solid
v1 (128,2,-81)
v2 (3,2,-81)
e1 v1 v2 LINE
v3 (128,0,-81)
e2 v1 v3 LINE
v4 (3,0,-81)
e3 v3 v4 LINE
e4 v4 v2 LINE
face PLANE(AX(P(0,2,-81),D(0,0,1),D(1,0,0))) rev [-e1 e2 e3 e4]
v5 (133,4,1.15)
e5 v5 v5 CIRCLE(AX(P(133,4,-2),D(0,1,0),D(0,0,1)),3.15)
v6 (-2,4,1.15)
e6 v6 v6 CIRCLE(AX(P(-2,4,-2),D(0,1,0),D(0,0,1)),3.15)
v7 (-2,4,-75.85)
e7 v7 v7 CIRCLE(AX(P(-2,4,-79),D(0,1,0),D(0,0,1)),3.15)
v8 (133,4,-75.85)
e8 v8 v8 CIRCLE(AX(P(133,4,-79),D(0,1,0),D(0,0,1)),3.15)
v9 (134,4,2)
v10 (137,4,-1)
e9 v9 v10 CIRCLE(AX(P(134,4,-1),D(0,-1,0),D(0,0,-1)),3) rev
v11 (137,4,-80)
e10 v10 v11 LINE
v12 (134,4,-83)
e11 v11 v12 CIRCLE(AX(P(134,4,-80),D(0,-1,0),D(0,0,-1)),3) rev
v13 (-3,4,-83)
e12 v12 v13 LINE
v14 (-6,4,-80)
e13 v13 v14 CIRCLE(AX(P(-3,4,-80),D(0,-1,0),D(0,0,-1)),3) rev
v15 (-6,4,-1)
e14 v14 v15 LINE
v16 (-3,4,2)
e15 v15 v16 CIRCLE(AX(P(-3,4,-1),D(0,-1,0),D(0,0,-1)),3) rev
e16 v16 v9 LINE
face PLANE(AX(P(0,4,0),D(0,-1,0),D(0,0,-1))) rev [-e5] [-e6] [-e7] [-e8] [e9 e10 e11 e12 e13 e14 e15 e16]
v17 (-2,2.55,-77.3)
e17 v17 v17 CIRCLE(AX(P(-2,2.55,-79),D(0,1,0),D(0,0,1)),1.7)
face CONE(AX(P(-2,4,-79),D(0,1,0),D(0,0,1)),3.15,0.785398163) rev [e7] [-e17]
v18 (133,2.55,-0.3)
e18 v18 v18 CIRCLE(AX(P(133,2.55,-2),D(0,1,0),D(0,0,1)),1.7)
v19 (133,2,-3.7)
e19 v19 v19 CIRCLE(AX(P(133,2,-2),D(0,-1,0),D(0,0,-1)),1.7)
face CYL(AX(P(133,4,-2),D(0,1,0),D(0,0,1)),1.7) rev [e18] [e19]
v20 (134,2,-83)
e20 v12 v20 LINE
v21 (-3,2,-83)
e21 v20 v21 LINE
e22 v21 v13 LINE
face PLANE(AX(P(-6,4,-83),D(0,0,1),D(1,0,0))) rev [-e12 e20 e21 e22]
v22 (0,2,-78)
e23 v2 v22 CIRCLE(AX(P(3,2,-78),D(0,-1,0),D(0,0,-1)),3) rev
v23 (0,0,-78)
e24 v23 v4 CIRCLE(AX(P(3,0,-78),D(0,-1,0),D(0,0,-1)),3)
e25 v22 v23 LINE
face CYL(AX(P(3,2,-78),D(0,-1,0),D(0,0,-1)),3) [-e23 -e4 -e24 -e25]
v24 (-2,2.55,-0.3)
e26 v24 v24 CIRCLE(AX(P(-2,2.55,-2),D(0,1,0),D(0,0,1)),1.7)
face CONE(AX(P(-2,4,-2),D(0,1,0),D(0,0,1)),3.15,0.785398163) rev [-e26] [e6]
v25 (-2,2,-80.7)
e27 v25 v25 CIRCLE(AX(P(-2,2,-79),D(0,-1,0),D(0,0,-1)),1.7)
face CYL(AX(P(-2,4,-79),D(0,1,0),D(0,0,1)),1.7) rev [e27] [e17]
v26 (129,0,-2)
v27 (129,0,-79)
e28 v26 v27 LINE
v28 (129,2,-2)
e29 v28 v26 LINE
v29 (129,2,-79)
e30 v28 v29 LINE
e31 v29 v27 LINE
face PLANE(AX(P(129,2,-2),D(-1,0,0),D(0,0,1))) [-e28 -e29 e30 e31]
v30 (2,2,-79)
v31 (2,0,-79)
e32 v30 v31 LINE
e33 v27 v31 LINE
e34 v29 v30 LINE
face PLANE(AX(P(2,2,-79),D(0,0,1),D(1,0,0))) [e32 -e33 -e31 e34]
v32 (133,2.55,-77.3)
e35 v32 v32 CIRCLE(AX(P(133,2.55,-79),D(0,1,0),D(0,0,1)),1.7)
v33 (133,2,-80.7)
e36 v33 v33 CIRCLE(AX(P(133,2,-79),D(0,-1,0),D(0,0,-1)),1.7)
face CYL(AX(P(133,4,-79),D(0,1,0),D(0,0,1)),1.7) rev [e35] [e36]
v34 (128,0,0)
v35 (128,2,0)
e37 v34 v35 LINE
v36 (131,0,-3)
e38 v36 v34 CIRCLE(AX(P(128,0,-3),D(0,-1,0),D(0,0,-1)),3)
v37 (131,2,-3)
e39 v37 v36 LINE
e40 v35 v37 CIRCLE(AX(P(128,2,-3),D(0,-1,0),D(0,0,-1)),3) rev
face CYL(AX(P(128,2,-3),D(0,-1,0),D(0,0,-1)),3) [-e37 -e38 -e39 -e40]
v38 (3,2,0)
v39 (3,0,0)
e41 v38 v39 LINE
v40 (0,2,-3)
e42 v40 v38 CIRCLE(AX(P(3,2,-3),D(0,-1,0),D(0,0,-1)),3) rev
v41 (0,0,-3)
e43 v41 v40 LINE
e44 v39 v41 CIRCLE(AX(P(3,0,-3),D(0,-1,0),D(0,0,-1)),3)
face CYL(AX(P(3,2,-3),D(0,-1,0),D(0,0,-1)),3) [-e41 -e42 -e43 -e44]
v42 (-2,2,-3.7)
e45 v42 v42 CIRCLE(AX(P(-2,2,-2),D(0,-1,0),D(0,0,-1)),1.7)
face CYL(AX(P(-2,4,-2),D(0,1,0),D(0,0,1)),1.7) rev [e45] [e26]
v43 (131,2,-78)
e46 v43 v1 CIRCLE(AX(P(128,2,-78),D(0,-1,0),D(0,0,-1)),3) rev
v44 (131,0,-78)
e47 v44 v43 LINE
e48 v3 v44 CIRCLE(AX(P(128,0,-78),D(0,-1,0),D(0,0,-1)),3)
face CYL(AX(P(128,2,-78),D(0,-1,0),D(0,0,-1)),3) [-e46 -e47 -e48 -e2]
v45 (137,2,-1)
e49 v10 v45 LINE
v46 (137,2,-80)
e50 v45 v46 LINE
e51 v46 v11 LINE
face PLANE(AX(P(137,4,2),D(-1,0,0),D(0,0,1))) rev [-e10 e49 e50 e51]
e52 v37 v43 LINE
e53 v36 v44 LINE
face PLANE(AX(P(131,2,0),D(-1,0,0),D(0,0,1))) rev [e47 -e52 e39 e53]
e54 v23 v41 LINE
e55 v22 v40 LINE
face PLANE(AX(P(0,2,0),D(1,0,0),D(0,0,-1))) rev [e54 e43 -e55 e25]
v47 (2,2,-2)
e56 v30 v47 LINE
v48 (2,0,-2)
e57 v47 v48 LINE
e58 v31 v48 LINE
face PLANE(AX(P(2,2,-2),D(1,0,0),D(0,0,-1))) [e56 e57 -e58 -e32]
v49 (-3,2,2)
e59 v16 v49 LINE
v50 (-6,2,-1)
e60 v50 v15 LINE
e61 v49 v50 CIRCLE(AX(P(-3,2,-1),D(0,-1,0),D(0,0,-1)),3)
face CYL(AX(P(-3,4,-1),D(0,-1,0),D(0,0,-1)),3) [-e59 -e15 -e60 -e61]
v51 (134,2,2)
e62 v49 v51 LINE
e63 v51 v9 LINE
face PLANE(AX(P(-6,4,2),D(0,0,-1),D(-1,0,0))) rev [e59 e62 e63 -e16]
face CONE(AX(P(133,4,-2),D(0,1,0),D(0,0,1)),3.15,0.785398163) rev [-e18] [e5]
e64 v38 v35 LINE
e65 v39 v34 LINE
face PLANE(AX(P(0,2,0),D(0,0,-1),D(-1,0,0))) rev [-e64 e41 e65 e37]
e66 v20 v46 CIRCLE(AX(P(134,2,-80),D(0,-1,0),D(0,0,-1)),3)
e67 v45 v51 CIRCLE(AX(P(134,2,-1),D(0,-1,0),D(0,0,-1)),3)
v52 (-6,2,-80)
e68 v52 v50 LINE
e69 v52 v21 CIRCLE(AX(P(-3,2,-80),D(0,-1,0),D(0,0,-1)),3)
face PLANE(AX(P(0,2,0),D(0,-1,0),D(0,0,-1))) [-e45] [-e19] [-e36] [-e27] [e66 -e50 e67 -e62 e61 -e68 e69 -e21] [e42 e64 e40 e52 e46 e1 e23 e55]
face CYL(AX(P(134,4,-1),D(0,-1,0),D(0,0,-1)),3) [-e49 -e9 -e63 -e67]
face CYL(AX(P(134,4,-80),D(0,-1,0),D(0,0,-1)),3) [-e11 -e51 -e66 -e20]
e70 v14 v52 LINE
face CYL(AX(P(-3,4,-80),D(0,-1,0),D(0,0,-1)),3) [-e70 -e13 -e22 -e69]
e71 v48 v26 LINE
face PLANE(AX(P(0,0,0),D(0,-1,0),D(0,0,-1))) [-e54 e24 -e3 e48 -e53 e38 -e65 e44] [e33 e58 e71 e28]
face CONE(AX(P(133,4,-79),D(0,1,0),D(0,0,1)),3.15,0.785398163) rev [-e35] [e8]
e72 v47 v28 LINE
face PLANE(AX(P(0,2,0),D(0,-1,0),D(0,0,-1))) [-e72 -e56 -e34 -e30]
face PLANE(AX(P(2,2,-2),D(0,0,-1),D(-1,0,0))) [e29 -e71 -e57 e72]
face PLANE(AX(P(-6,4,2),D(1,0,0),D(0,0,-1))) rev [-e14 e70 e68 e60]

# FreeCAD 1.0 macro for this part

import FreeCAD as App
import Part
import Sketcher
from FreeCAD import Vector
Q = App.Units.Quantity


def edges_at(feature, points):
    """Names of the edges that pass closest to the given points."""
    edges = feature.Shape.Edges
    near = lambda p: min(range(len(edges)), key=lambda i: edges[i].distToShape(Part.Vertex(*p))[0])
    return sorted({f"Edge{near(p) + 1}" for p in points})

doc = App.newDocument("Part")
body = doc.addObject("PartDesign::Body", "Body")

sketch1 = body.newObject("Sketcher::SketchObject", "Sketch")
sketch1.AttachmentSupport = (doc.getObject("XZ_Plane"), [""])
sketch1.MapMode = "FlatFace"
sketch1.addGeometry(Part.LineSegment(Vector(0, -81, 0), Vector(0, 0, 0)), False)
sketch1.addGeometry(Part.LineSegment(Vector(0, 0, 0), Vector(131, 0, 0)), False)
sketch1.addGeometry(Part.LineSegment(Vector(131, 0, 0), Vector(131, -81, 0)), False)
sketch1.addGeometry(Part.LineSegment(Vector(131, -81, 0), Vector(0, -81, 0)), False)
sketch1.addGeometry(Part.LineSegment(Vector(129, -2, 0), Vector(2, -2, 0)), False)
sketch1.addGeometry(Part.LineSegment(Vector(2, -2, 0), Vector(2, -79, 0)), False)
sketch1.addGeometry(Part.LineSegment(Vector(2, -79, 0), Vector(129, -79, 0)), False)
sketch1.addGeometry(Part.LineSegment(Vector(129, -79, 0), Vector(129, -2, 0)), False)
sketch1.addConstraint(Sketcher.Constraint("Coincident", 0, 2, 1, 1))
sketch1.addConstraint(Sketcher.Constraint("Coincident", 1, 2, 2, 1))
sketch1.addConstraint(Sketcher.Constraint("Coincident", 2, 2, 3, 1))
sketch1.addConstraint(Sketcher.Constraint("Coincident", 3, 2, 0, 1))
sketch1.addConstraint(Sketcher.Constraint("Coincident", 4, 2, 5, 1))
sketch1.addConstraint(Sketcher.Constraint("Coincident", 5, 2, 6, 1))
sketch1.addConstraint(Sketcher.Constraint("Coincident", 6, 2, 7, 1))
sketch1.addConstraint(Sketcher.Constraint("Coincident", 7, 2, 4, 1))
sketch1.addConstraint(Sketcher.Constraint("Vertical", 0))
sketch1.addConstraint(Sketcher.Constraint("Horizontal", 1))
sketch1.addConstraint(Sketcher.Constraint("Vertical", 2))
sketch1.addConstraint(Sketcher.Constraint("Horizontal", 3))
sketch1.addConstraint(Sketcher.Constraint("Horizontal", 4))
sketch1.addConstraint(Sketcher.Constraint("Vertical", 5))
sketch1.addConstraint(Sketcher.Constraint("Horizontal", 6))
sketch1.addConstraint(Sketcher.Constraint("Vertical", 7))
sketch1.addConstraint(Sketcher.Constraint("Coincident", 0, 2, -1, 1))
sketch1.addConstraint(Sketcher.Constraint("DistanceX", 1, 1, 1, 2, Q("131 mm")))
sketch1.addConstraint(Sketcher.Constraint("DistanceX", 4, 2, 4, 1, Q("127 mm")))
sketch1.addConstraint(Sketcher.Constraint("DistanceY", 0, 1, 0, 2, Q("81 mm")))
sketch1.addConstraint(Sketcher.Constraint("DistanceY", 5, 2, 5, 1, Q("77 mm")))
sketch1.addConstraint(Sketcher.Constraint("DistanceX", -1, 1, 4, 2, Q("2 mm")))
sketch1.addConstraint(Sketcher.Constraint("DistanceY", 4, 2, -1, 1, Q("2 mm")))
pad1 = body.newObject("PartDesign::Pad", "Pad")
pad1.Profile = sketch1
pad1.Length = 2
pad1.Reversed = True

sketch2 = body.newObject("Sketcher::SketchObject", "Sketch001")
sketch2.AttachmentSupport = (doc.getObject("XZ_Plane"), [""])
sketch2.MapMode = "FlatFace"
sketch2.AttachmentOffset = App.Placement(Vector(0, 0, -2), App.Rotation())
sketch2.addGeometry(Part.LineSegment(Vector(-6, -83, 0), Vector(-6, 2, 0)), False)
sketch2.addGeometry(Part.LineSegment(Vector(-6, 2, 0), Vector(137, 2, 0)), False)
sketch2.addGeometry(Part.LineSegment(Vector(137, 2, 0), Vector(137, -83, 0)), False)
sketch2.addGeometry(Part.LineSegment(Vector(137, -83, 0), Vector(-6, -83, 0)), False)
sketch2.addConstraint(Sketcher.Constraint("Coincident", 0, 2, 1, 1))
sketch2.addConstraint(Sketcher.Constraint("Coincident", 1, 2, 2, 1))
sketch2.addConstraint(Sketcher.Constraint("Coincident", 2, 2, 3, 1))
sketch2.addConstraint(Sketcher.Constraint("Coincident", 3, 2, 0, 1))
sketch2.addConstraint(Sketcher.Constraint("Vertical", 0))
sketch2.addConstraint(Sketcher.Constraint("Horizontal", 1))
sketch2.addConstraint(Sketcher.Constraint("Vertical", 2))
sketch2.addConstraint(Sketcher.Constraint("Horizontal", 3))
sketch2.addConstraint(Sketcher.Constraint("DistanceX", 1, 1, 1, 2, Q("143 mm")))
sketch2.addConstraint(Sketcher.Constraint("DistanceY", 0, 1, 0, 2, Q("85 mm")))
sketch2.addConstraint(Sketcher.Constraint("DistanceX", 0, 2, -1, 1, Q("6 mm")))
sketch2.addConstraint(Sketcher.Constraint("DistanceY", -1, 1, 0, 2, Q("2 mm")))
pad2 = body.newObject("PartDesign::Pad", "Pad001")
pad2.Profile = sketch2
pad2.Length = 2
pad2.Reversed = True
doc.recompute()

fillet = body.newObject("PartDesign::Fillet", "Fillet")
fillet.Base = (pad2, edges_at(pad2, [
    (-6, 3, -83),
    (-6, 3, 2),
    (137, 3, 2),
    (137, 3, -83),
    (0, 1, -81),
    (131, 1, -81),
    (131, 1, 0),
    (0, 1, 0),
]))
fillet.Radius = 3

sketch3 = body.newObject("Sketcher::SketchObject", "Sketch002")
sketch3.AttachmentSupport = (doc.getObject("XZ_Plane"), [""])
sketch3.MapMode = "FlatFace"
sketch3.AttachmentOffset = App.Placement(Vector(0, 0, -4), App.Rotation())
sketch3.addGeometry(Part.Circle(Vector(-2, -2, 0), Vector(0, 0, 1), 1.7), False)
sketch3.addGeometry(Part.Circle(Vector(133, -79, 0), Vector(0, 0, 1), 1.7), False)
sketch3.addGeometry(Part.Circle(Vector(-2, -79, 0), Vector(0, 0, 1), 1.7), False)
sketch3.addGeometry(Part.Circle(Vector(133, -2, 0), Vector(0, 0, 1), 1.7), False)
sketch3.addConstraint(Sketcher.Constraint("Equal", 0, 1))
sketch3.addConstraint(Sketcher.Constraint("Equal", 1, 2))
sketch3.addConstraint(Sketcher.Constraint("Equal", 2, 3))
sketch3.addConstraint(Sketcher.Constraint("Horizontal", 1, 3, 2, 3))
sketch3.addConstraint(Sketcher.Constraint("Horizontal", 0, 3, 3, 3))
sketch3.addConstraint(Sketcher.Constraint("Vertical", 0, 3, 2, 3))
sketch3.addConstraint(Sketcher.Constraint("Vertical", 1, 3, 3, 3))
sketch3.addConstraint(Sketcher.Constraint("Diameter", 0, Q("3.4 mm")))
sketch3.addConstraint(Sketcher.Constraint("DistanceX", 0, 3, -1, 1, Q("2 mm")))
sketch3.addConstraint(Sketcher.Constraint("DistanceY", 0, 3, -1, 1, Q("2 mm")))
sketch3.addConstraint(Sketcher.Constraint("DistanceX", -1, 1, 1, 3, Q("133 mm")))
sketch3.addConstraint(Sketcher.Constraint("DistanceY", 1, 3, -1, 1, Q("79 mm")))
doc.recompute()
hole = body.newObject("PartDesign::Hole", "Hole")
hole.Profile = sketch3
hole.ThreadType = "None"
hole.Diameter = 3.4
hole.DepthType = "Dimension"
hole.Depth = 7.25
hole.DrillPoint = "Angled"
hole.DrillPointAngle = 118
hole.HoleCutType = "Countersink"
hole.HoleCutDiameter = 6.3
hole.HoleCutCountersinkAngle = 90
hole.Reversed = True

doc.recompute()
